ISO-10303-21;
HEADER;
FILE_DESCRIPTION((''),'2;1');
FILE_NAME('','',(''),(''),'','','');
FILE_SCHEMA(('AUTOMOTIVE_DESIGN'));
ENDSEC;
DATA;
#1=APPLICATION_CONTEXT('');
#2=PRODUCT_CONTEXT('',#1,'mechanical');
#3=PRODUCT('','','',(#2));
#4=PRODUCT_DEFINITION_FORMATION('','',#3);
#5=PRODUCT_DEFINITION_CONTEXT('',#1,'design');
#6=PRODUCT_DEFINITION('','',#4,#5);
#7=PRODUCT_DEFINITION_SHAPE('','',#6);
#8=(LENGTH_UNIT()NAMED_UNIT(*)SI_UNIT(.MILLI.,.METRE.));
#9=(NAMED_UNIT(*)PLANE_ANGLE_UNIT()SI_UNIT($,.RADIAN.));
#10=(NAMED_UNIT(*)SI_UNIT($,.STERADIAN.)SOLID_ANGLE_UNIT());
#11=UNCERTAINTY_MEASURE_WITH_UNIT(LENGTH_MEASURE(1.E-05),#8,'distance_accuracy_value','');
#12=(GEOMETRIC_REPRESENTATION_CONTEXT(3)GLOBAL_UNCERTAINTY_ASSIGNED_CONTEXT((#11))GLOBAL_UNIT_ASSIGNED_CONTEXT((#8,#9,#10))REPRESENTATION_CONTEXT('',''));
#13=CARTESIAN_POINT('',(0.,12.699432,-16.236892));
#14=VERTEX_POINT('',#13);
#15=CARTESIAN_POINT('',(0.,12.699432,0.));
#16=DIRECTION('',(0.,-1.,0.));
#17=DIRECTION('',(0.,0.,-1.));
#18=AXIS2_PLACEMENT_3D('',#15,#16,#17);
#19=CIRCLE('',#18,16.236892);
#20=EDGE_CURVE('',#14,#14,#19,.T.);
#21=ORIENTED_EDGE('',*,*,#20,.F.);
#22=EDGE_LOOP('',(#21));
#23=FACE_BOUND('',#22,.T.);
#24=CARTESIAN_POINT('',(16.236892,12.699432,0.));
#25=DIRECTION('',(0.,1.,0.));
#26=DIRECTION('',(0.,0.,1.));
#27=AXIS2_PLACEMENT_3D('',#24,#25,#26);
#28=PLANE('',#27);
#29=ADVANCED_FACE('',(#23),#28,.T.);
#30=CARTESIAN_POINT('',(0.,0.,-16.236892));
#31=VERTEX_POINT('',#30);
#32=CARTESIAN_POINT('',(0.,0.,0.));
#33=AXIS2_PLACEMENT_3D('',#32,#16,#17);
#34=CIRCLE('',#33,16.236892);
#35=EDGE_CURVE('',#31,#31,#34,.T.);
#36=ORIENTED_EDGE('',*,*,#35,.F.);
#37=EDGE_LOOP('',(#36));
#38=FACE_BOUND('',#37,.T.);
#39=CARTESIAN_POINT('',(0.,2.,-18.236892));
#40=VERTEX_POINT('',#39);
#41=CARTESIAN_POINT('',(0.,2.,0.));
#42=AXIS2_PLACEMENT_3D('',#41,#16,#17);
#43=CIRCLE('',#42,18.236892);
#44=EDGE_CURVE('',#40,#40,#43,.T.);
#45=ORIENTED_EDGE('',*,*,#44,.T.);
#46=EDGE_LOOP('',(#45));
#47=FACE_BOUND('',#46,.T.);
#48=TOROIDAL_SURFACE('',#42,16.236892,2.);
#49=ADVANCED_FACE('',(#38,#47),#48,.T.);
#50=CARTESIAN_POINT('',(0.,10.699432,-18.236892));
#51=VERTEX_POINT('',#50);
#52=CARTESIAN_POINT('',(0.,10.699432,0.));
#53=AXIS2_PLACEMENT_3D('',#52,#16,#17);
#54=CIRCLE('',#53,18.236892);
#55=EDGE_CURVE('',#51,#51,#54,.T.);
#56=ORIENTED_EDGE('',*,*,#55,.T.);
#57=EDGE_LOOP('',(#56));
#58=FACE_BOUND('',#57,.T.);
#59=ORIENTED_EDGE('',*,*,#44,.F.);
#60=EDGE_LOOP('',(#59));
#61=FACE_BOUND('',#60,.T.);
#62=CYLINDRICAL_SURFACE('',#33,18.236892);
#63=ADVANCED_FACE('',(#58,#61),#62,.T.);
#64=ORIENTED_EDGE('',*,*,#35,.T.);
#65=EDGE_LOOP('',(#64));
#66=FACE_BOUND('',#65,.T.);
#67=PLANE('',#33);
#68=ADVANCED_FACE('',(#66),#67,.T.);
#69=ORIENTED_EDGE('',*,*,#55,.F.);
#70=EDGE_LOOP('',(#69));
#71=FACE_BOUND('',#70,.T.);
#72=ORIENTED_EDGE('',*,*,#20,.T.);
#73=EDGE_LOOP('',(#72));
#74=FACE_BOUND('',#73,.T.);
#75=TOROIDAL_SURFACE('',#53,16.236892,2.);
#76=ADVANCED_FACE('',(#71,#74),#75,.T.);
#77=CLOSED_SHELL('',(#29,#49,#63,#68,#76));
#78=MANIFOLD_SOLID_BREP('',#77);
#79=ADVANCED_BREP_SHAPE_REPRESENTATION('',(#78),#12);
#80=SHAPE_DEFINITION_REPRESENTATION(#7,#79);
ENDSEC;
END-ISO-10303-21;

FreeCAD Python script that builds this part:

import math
import FreeCAD as App
import Part
import Sketcher
from FreeCAD import Vector
Q = App.Units.Quantity

doc = App.newDocument("Part")
params = doc.addObject("Spreadsheet::Sheet", "Params")
for row, (alias, value) in enumerate([
    ("sketch1_radius", "2 mm"),
    ("revolution_angle", "360 deg"),
], start=1):
    params.set(f"A{row}", alias)
    params.set(f"B{row}", "=" + value)
    params.setAlias(f"B{row}", alias)

body = doc.addObject("PartDesign::Body", "Body")

sketch1 = body.newObject("Sketcher::SketchObject", "Sketch")
sketch1.AttachmentSupport = (doc.getObject("XY_Plane"), [""])
sketch1.MapMode = "FlatFace"
sketch1.addGeometry(Part.LineSegment(Vector(0, 12.7, 0), Vector(0, 0, 0)), False)
sketch1.addGeometry(Part.LineSegment(Vector(0, 0, 0), Vector(16.2, 0, 0)), False)
sketch1.addGeometry(Part.ArcOfCircle(Part.Circle(Vector(16.2, 2, 0), Vector(0, 0, 1), 2), math.radians(-90), math.radians(0)), False)
sketch1.addGeometry(Part.LineSegment(Vector(18.2, 2, 0), Vector(18.2, 10.7, 0)), False)
sketch1.addGeometry(Part.ArcOfCircle(Part.Circle(Vector(16.2, 10.7, 0), Vector(0, 0, 1), 2), math.radians(0), math.radians(90)), False)
sketch1.addGeometry(Part.LineSegment(Vector(16.2, 12.7, 0), Vector(0, 12.7, 0)), False)
sketch1.addConstraint(Sketcher.Constraint("Coincident", 0, 2, 1, 1))
sketch1.addConstraint(Sketcher.Constraint("Tangent", 1, 2, 2, 1))
sketch1.addConstraint(Sketcher.Constraint("Tangent", 2, 2, 3, 1))
sketch1.addConstraint(Sketcher.Constraint("Tangent", 3, 2, 4, 1))
sketch1.addConstraint(Sketcher.Constraint("Tangent", 4, 2, 5, 1))
sketch1.addConstraint(Sketcher.Constraint("Coincident", 5, 2, 0, 1))
sketch1.addConstraint(Sketcher.Constraint("Vertical", 0))
sketch1.addConstraint(Sketcher.Constraint("Horizontal", 1))
sketch1.addConstraint(Sketcher.Constraint("Vertical", 3))
sketch1.addConstraint(Sketcher.Constraint("Horizontal", 5))
sketch1.addConstraint(Sketcher.Constraint("Coincident", 0, 2, -1, 1))
sketch1.addConstraint(Sketcher.Constraint("Equal", 2, 4))
sketch1.addConstraint(Sketcher.Constraint("Radius", 2, Q("2 mm")))
sketch1.addConstraint(Sketcher.Constraint("DistanceX", 1, 1, 1, 2, Q("16.236892 mm")))
sketch1.addConstraint(Sketcher.Constraint("DistanceY", 0, 2, 0, 1, Q("12.699432 mm")))
sketch1.setExpression("Constraints[12]", "Params.sketch1_radius")
revolution = body.newObject("PartDesign::Revolution", "Revolution")
revolution.Profile = sketch1
revolution.ReferenceAxis = (sketch1, ["V_Axis"])
revolution.setExpression("Angle", "Params.revolution_angle")

doc.recompute()
